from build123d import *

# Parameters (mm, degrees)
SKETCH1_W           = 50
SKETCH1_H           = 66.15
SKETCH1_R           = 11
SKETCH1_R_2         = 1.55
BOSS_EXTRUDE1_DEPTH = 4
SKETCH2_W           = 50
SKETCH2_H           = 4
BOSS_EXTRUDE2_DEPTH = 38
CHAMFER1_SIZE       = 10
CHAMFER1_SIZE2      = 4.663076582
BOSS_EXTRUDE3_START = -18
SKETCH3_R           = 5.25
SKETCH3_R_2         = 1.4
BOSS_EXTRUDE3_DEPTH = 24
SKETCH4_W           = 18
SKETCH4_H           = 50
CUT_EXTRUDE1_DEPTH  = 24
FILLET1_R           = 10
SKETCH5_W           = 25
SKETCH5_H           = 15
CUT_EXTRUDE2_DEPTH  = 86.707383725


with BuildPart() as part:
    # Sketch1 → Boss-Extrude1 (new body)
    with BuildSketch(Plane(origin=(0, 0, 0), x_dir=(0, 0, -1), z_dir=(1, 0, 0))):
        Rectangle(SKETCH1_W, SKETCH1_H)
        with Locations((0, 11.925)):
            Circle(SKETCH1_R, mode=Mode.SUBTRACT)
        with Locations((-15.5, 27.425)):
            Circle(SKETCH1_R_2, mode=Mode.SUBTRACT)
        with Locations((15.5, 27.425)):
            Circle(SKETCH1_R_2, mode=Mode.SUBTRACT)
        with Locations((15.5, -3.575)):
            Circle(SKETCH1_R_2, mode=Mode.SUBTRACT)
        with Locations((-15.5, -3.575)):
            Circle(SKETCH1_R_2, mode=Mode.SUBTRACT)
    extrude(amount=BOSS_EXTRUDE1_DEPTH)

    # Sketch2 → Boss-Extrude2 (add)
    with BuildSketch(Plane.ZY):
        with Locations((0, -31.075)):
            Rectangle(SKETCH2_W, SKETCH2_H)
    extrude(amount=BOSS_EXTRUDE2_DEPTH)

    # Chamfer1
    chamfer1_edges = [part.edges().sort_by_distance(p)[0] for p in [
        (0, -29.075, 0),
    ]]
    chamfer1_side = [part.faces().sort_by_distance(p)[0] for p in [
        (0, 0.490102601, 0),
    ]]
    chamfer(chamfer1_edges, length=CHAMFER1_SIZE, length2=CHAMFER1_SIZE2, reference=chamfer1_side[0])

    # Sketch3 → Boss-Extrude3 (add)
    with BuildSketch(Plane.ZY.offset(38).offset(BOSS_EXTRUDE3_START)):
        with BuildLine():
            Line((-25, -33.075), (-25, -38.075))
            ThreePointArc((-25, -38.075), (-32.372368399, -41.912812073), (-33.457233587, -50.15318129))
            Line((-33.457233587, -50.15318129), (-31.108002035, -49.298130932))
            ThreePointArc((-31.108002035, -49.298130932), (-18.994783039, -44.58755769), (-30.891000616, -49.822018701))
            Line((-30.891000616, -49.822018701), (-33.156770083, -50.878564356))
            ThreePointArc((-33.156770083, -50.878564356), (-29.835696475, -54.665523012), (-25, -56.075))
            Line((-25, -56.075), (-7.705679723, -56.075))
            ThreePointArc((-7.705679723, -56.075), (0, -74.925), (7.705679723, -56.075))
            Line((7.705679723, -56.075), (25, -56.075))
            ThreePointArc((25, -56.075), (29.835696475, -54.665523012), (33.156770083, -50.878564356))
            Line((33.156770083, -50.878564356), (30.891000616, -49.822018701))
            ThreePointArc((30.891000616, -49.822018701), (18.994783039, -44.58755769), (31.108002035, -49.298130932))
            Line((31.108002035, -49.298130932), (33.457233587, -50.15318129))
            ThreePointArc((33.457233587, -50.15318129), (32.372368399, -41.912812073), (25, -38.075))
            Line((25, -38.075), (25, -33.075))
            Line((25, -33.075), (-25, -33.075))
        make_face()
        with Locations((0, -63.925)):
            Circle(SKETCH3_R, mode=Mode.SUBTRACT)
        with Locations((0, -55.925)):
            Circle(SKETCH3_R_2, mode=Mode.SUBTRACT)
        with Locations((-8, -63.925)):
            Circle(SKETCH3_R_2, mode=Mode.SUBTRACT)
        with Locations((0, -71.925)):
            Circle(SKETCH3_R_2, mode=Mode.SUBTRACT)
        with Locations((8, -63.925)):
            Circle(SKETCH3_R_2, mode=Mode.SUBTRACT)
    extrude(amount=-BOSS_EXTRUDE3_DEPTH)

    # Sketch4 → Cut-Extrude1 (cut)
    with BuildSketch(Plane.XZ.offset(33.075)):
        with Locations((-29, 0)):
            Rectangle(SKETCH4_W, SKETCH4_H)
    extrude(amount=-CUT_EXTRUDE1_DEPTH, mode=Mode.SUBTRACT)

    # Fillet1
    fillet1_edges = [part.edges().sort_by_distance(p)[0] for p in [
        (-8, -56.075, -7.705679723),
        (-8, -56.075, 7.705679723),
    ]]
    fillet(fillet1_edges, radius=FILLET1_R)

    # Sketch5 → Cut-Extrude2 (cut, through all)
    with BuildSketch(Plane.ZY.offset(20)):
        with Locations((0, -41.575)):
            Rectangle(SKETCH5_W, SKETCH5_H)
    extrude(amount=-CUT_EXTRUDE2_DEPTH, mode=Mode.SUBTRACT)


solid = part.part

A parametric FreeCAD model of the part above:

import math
import FreeCAD as App
import Part
import Sketcher
Q = App.Units.Quantity


def edges_at(feature, points):
    """Names of the edges that pass closest to the given points."""
    edges = feature.Shape.Edges
    near = lambda p: min(range(len(edges)), key=lambda i: edges[i].distToShape(Part.Vertex(*p))[0])
    return sorted({f"Edge{near(p) + 1}" for p in points})

doc = App.newDocument("Part")
body = doc.addObject("PartDesign::Body", "Body")

# Sketch on YZ plane
sketch1 = body.newObject("Sketcher::SketchObject", "Sketch")
sketch1.AttachmentSupport = (doc.getObject("YZ_Plane"), [""])
sketch1.MapMode = "FlatFace"
sketch1.addGeometry(Part.LineSegment(App.Vector(33.1, 25, 0), App.Vector(-33.1, 25, 0)), False)
sketch1.addGeometry(Part.LineSegment(App.Vector(-33.1, 25, 0), App.Vector(-33.1, -25, 0)), False)
sketch1.addGeometry(Part.LineSegment(App.Vector(-33.1, -25, 0), App.Vector(33.1, -25, 0)), False)
sketch1.addGeometry(Part.LineSegment(App.Vector(33.1, -25, 0), App.Vector(33.1, 25, 0)), False)
sketch1.addGeometry(Part.Circle(App.Vector(-3.6, 15.5, 0), App.Vector(0, 0, 1), 1.6), False)
sketch1.addGeometry(Part.Circle(App.Vector(-3.6, -15.5, 0), App.Vector(0, 0, 1), 1.6), False)
sketch1.addGeometry(Part.Circle(App.Vector(27.4, 15.5, 0), App.Vector(0, 0, 1), 1.6), False)
sketch1.addGeometry(Part.Circle(App.Vector(11.9, 0, 0), App.Vector(0, 0, 1), 11), False)
sketch1.addGeometry(Part.Circle(App.Vector(27.4, -15.5, 0), App.Vector(0, 0, 1), 1.6), False)
sketch1.addConstraint(Sketcher.Constraint("Coincident", 0, 2, 1, 1))
sketch1.addConstraint(Sketcher.Constraint("Coincident", 1, 2, 2, 1))
sketch1.addConstraint(Sketcher.Constraint("Coincident", 2, 2, 3, 1))
sketch1.addConstraint(Sketcher.Constraint("Coincident", 3, 2, 0, 1))
sketch1.addConstraint(Sketcher.Constraint("Horizontal", 0))
sketch1.addConstraint(Sketcher.Constraint("Vertical", 1))
sketch1.addConstraint(Sketcher.Constraint("Horizontal", 2))
sketch1.addConstraint(Sketcher.Constraint("Vertical", 3))
sketch1.addConstraint(Sketcher.Constraint("Equal", 4, 5))
sketch1.addConstraint(Sketcher.Constraint("Equal", 5, 6))
sketch1.addConstraint(Sketcher.Constraint("Equal", 6, 8))
sketch1.addConstraint(Sketcher.Constraint("Symmetric", 0, 2, 2, 2, -1, 1))
sketch1.addConstraint(Sketcher.Constraint("Symmetric", 4, 3, 5, 3, -1))
sketch1.addConstraint(Sketcher.Constraint("Symmetric", 6, 3, 8, 3, -1))
sketch1.addConstraint(Sketcher.Constraint("PointOnObject", 7, 3, -1))
sketch1.addConstraint(Sketcher.Constraint("Horizontal", 4, 3, 6, 3))
sketch1.addConstraint(Sketcher.Constraint("Diameter", 7, Q("22 mm")))
sketch1.addConstraint(Sketcher.Constraint("Diameter", 4, Q("3.1 mm")))
sketch1.addConstraint(Sketcher.Constraint("DistanceY", 1, 2, 1, 1, Q("50 mm")))
sketch1.addConstraint(Sketcher.Constraint("DistanceY", 5, 3, 4, 3, Q("31 mm")))
sketch1.addConstraint(Sketcher.Constraint("DistanceX", 4, 3, 6, 3, Q("31 mm")))
sketch1.addConstraint(Sketcher.Constraint("DistanceX", 0, 2, 7, 3, Q("45 mm")))
sketch1.addConstraint(Sketcher.Constraint("DistanceX", 0, 2, 0, 1, Q("66.15 mm")))
sketch1.addConstraint(Sketcher.Constraint("DistanceX", 4, 3, 7, 3, Q("15.5 mm")))
pad1 = body.newObject("PartDesign::Pad", "Pad")
pad1.Profile = sketch1
pad1.Length = 4

# Sketch on YZ plane
sketch2 = body.newObject("Sketcher::SketchObject", "Sketch001")
sketch2.AttachmentSupport = (doc.getObject("YZ_Plane"), [""])
sketch2.MapMode = "FlatFace"
sketch2.addGeometry(Part.LineSegment(App.Vector(-29.1, -25, 0), App.Vector(-33.1, -25, 0)), False)
sketch2.addGeometry(Part.LineSegment(App.Vector(-33.1, -25, 0), App.Vector(-33.1, 25, 0)), False)
sketch2.addGeometry(Part.LineSegment(App.Vector(-33.1, 25, 0), App.Vector(-29.1, 25, 0)), False)
sketch2.addGeometry(Part.LineSegment(App.Vector(-29.1, 25, 0), App.Vector(-29.1, -25, 0)), False)
sketch2.addConstraint(Sketcher.Constraint("Coincident", 0, 2, 1, 1))
sketch2.addConstraint(Sketcher.Constraint("Coincident", 1, 2, 2, 1))
sketch2.addConstraint(Sketcher.Constraint("Coincident", 2, 2, 3, 1))
sketch2.addConstraint(Sketcher.Constraint("Coincident", 3, 2, 0, 1))
sketch2.addConstraint(Sketcher.Constraint("Horizontal", 0))
sketch2.addConstraint(Sketcher.Constraint("Vertical", 1))
sketch2.addConstraint(Sketcher.Constraint("Horizontal", 2))
sketch2.addConstraint(Sketcher.Constraint("Vertical", 3))
sketch2.addConstraint(Sketcher.Constraint("DistanceX", 0, 2, 0, 1, Q("4 mm")))
sketch2.addConstraint(Sketcher.Constraint("DistanceY", 1, 1, 1, 2, Q("50 mm")))
sketch2.addConstraint(Sketcher.Constraint("DistanceY", 0, 2, -1, 1, Q("25 mm")))
sketch2.addConstraint(Sketcher.Constraint("DistanceX", 0, 2, -1, 1, Q("33.075 mm")))
pad2 = body.newObject("PartDesign::Pad", "Pad001")
pad2.Profile = sketch2
pad2.Length = 38
pad2.Reversed = True
doc.recompute()

chamfer = body.newObject("PartDesign::Chamfer", "Chamfer")
chamfer.Base = (pad2, edges_at(pad2, [(0, -29.075, 0)]))
chamfer.ChamferType = "Two distances"
chamfer.Size = 10
chamfer.Size2 = 4.663077

# Sketch on YZ plane
sketch3 = body.newObject("Sketcher::SketchObject", "Sketch002")
sketch3.AttachmentSupport = (doc.getObject("YZ_Plane"), [""])
sketch3.MapMode = "FlatFace"
sketch3.AttachmentOffset = App.Placement(App.Vector(0, 0, -20), App.Rotation())
sketch3.addGeometry(Part.LineSegment(App.Vector(-33.1, -25, 0), App.Vector(-38.1, -25, 0)), False)
sketch3.addGeometry(Part.ArcOfCircle(Part.Circle(App.Vector(-47.1, -25, 0), App.Vector(0, 0, 1), 9), math.radians(-110), math.radians(0)), False)
sketch3.addGeometry(Part.LineSegment(App.Vector(-50.2, -33.5, 0), App.Vector(-49.3, -31.1, 0)), False)
sketch3.addGeometry(Part.ArcOfCircle(Part.Circle(App.Vector(-47.1, -25, 0), App.Vector(0, 0, 1), 6.5), math.radians(-110), math.radians(245)), False)
sketch3.addGeometry(Part.LineSegment(App.Vector(-49.8, -30.9, 0), App.Vector(-50.9, -33.2, 0)), False)
sketch3.addGeometry(Part.ArcOfCircle(Part.Circle(App.Vector(-47.1, -25, 0), App.Vector(0, 0, 1), 9), math.radians(-180), math.radians(-115)), False)
sketch3.addGeometry(Part.LineSegment(App.Vector(-56.1, -25, 0), App.Vector(-56.1, -7.7, 0)), False)
sketch3.addGeometry(Part.ArcOfCircle(Part.Circle(App.Vector(-63.9, 0, 0), App.Vector(0, 0, 1), 11), math.radians(44), math.radians(316)), False)
sketch3.addGeometry(Part.LineSegment(App.Vector(-56.1, 7.7, 0), App.Vector(-56.1, 25, 0)), False)
sketch3.addGeometry(Part.ArcOfCircle(Part.Circle(App.Vector(-47.1, 25, 0), App.Vector(0, 0, 1), 9), math.radians(115), math.radians(180)), False)
sketch3.addGeometry(Part.LineSegment(App.Vector(-50.9, 33.2, 0), App.Vector(-49.8, 30.9, 0)), False)
sketch3.addGeometry(Part.ArcOfCircle(Part.Circle(App.Vector(-47.1, 25, 0), App.Vector(0, 0, 1), 6.5), math.radians(115), math.radians(470)), False)
sketch3.addGeometry(Part.LineSegment(App.Vector(-49.3, 31.1, 0), App.Vector(-50.2, 33.5, 0)), False)
sketch3.addGeometry(Part.ArcOfCircle(Part.Circle(App.Vector(-47.1, 25, 0), App.Vector(0, 0, 1), 9), math.radians(0), math.radians(110)), False)
sketch3.addGeometry(Part.LineSegment(App.Vector(-38.1, 25, 0), App.Vector(-33.1, 25, 0)), False)
sketch3.addGeometry(Part.LineSegment(App.Vector(-33.1, 25, 0), App.Vector(-33.1, -25, 0)), False)
sketch3.addGeometry(Part.Circle(App.Vector(-71.9, 0, 0), App.Vector(0, 0, 1), 1.4), False)
sketch3.addGeometry(Part.Circle(App.Vector(-63.9, -8, 0), App.Vector(0, 0, 1), 1.4), False)
sketch3.addGeometry(Part.Circle(App.Vector(-63.9, 0, 0), App.Vector(0, 0, 1), 5.2), False)
sketch3.addGeometry(Part.Circle(App.Vector(-63.9, 8, 0), App.Vector(0, 0, 1), 1.4), False)
sketch3.addGeometry(Part.Circle(App.Vector(-55.9, 0, 0), App.Vector(0, 0, 1), 1.4), False)
sketch3.addConstraint(Sketcher.Constraint("Coincident", 0, 2, 1, 2))
sketch3.addConstraint(Sketcher.Constraint("Coincident", 1, 1, 2, 1))
sketch3.addConstraint(Sketcher.Constraint("Coincident", 2, 2, 3, 1))
sketch3.addConstraint(Sketcher.Constraint("Coincident", 3, 2, 4, 1))
sketch3.addConstraint(Sketcher.Constraint("Coincident", 4, 2, 5, 2))
sketch3.addConstraint(Sketcher.Constraint("Tangent", 5, 1, 6, 1))
sketch3.addConstraint(Sketcher.Constraint("Coincident", 6, 2, 7, 2))
sketch3.addConstraint(Sketcher.Constraint("Coincident", 7, 1, 8, 1))
sketch3.addConstraint(Sketcher.Constraint("Tangent", 8, 2, 9, 2))
sketch3.addConstraint(Sketcher.Constraint("Coincident", 9, 1, 10, 1))
sketch3.addConstraint(Sketcher.Constraint("Coincident", 10, 2, 11, 1))
sketch3.addConstraint(Sketcher.Constraint("Coincident", 11, 2, 12, 1))
sketch3.addConstraint(Sketcher.Constraint("Coincident", 12, 2, 13, 2))
sketch3.addConstraint(Sketcher.Constraint("Coincident", 13, 1, 14, 1))
sketch3.addConstraint(Sketcher.Constraint("Coincident", 14, 2, 15, 1))
sketch3.addConstraint(Sketcher.Constraint("Coincident", 15, 2, 0, 1))
sketch3.addConstraint(Sketcher.Constraint("Horizontal", 0))
sketch3.addConstraint(Sketcher.Constraint("Vertical", 6))
sketch3.addConstraint(Sketcher.Constraint("Vertical", 8))
sketch3.addConstraint(Sketcher.Constraint("Horizontal", 14))
sketch3.addConstraint(Sketcher.Constraint("Vertical", 15))
sketch3.addConstraint(Sketcher.Constraint("Coincident", 3, 3, 1, 3))
sketch3.addConstraint(Sketcher.Constraint("Coincident", 5, 3, 1, 3))
sketch3.addConstraint(Sketcher.Constraint("Coincident", 11, 3, 9, 3))
sketch3.addConstraint(Sketcher.Constraint("Coincident", 13, 3, 9, 3))
sketch3.addConstraint(Sketcher.Constraint("Coincident", 18, 3, 7, 3))
sketch3.addConstraint(Sketcher.Constraint("Equal", 1, 5))
sketch3.addConstraint(Sketcher.Constraint("Equal", 5, 9))
sketch3.addConstraint(Sketcher.Constraint("Equal", 3, 11))
sketch3.addConstraint(Sketcher.Constraint("Equal", 9, 13))
sketch3.addConstraint(Sketcher.Constraint("Equal", 16, 17))
sketch3.addConstraint(Sketcher.Constraint("Equal", 17, 19))
sketch3.addConstraint(Sketcher.Constraint("Equal", 19, 20))
sketch3.addConstraint(Sketcher.Constraint("Symmetric", 1, 3, 9, 3, -1))
sketch3.addConstraint(Sketcher.Constraint("Symmetric", 17, 3, 19, 3, -1))
sketch3.addConstraint(Sketcher.Constraint("PointOnObject", 7, 3, -1))
sketch3.addConstraint(Sketcher.Constraint("PointOnObject", 16, 3, -1))
sketch3.addConstraint(Sketcher.Constraint("PointOnObject", 20, 3, -1))
sketch3.addConstraint(Sketcher.Constraint("Horizontal", 5, 3, 0, 2))
sketch3.addConstraint(Sketcher.Constraint("Horizontal", 8, 2, 13, 1))
sketch3.addConstraint(Sketcher.Constraint("Vertical", 7, 3, 17, 3))
sketch3.addConstraint(Sketcher.Constraint("Vertical", 4, 2, 9, 1))
sketch3.addConstraint(Sketcher.Constraint("Vertical", 3, 2, 10, 2))
sketch3.addConstraint(Sketcher.Constraint("Vertical", 2, 2, 11, 2))
sketch3.addConstraint(Sketcher.Constraint("Vertical", 1, 1, 12, 2))
sketch3.addConstraint(Sketcher.Constraint("Radius", 1, Q("9 mm")))
sketch3.addConstraint(Sketcher.Constraint("Radius", 7, Q("11 mm")))
sketch3.addConstraint(Sketcher.Constraint("Diameter", 16, Q("2.8 mm")))
sketch3.addConstraint(Sketcher.Constraint("Diameter", 18, Q("10.5 mm")))
sketch3.addConstraint(Sketcher.Constraint("Radius", 3, Q("6.5 mm")))
sketch3.addConstraint(Sketcher.Constraint("DistanceX", 0, 2, 0, 1, Q("5 mm")))
sketch3.addConstraint(Sketcher.Constraint("DistanceY", 15, 2, 15, 1, Q("50 mm")))
sketch3.addConstraint(Sketcher.Constraint("Angle", 2, Q("70 deg")))
sketch3.addConstraint(Sketcher.Constraint("Angle", 4, Q("-115 deg")))
sketch3.addConstraint(Sketcher.Constraint("DistanceY", 17, 3, -1, 1, Q("8 mm")))
sketch3.addConstraint(Sketcher.Constraint("DistanceX", 16, 3, 7, 3, Q("8 mm")))
sketch3.addConstraint(Sketcher.Constraint("DistanceX", 7, 3, 20, 3, Q("8 mm")))
sketch3.addConstraint(Sketcher.Constraint("DistanceX", 7, 3, 3, 3, Q("16.85 mm")))
sketch3.addConstraint(Sketcher.Constraint("DistanceX", 1, 3, -1, 1, Q("47.075 mm")))
sketch3.addConstraint(Sketcher.Constraint("DistanceY", 3, 2, -1, 1, Q("30.891001 mm")))
sketch3.addConstraint(Sketcher.Constraint("DistanceY", 2, 2, 3, 2, Q("0.217001 mm")))
pad3 = body.newObject("PartDesign::Pad", "Pad002")
pad3.Profile = sketch3
pad3.Length = 24

# Sketch on XZ plane
sketch4 = body.newObject("Sketcher::SketchObject", "Sketch003")
sketch4.AttachmentSupport = (doc.getObject("XZ_Plane"), [""])
sketch4.MapMode = "FlatFace"
sketch4.AttachmentOffset = App.Placement(App.Vector(0, 0, 33.075), App.Rotation())
sketch4.addGeometry(Part.LineSegment(App.Vector(-38, 25, 0), App.Vector(-38, -25, 0)), False)
sketch4.addGeometry(Part.LineSegment(App.Vector(-38, -25, 0), App.Vector(-20, -25, 0)), False)
sketch4.addGeometry(Part.LineSegment(App.Vector(-20, -25, 0), App.Vector(-20, 25, 0)), False)
sketch4.addGeometry(Part.LineSegment(App.Vector(-20, 25, 0), App.Vector(-38, 25, 0)), False)
sketch4.addConstraint(Sketcher.Constraint("Coincident", 0, 2, 1, 1))
sketch4.addConstraint(Sketcher.Constraint("Coincident", 1, 2, 2, 1))
sketch4.addConstraint(Sketcher.Constraint("Coincident", 2, 2, 3, 1))
sketch4.addConstraint(Sketcher.Constraint("Coincident", 3, 2, 0, 1))
sketch4.addConstraint(Sketcher.Constraint("Vertical", 0))
sketch4.addConstraint(Sketcher.Constraint("Horizontal", 1))
sketch4.addConstraint(Sketcher.Constraint("Vertical", 2))
sketch4.addConstraint(Sketcher.Constraint("Horizontal", 3))
sketch4.addConstraint(Sketcher.Constraint("DistanceX", 1, 1, 1, 2, Q("18 mm")))
sketch4.addConstraint(Sketcher.Constraint("DistanceY", 0, 2, 0, 1, Q("50 mm")))
sketch4.addConstraint(Sketcher.Constraint("DistanceX", 0, 2, -1, 1, Q("38 mm")))
sketch4.addConstraint(Sketcher.Constraint("DistanceY", 0, 2, -1, 1, Q("25 mm")))
pocket1 = body.newObject("PartDesign::Pocket", "Pocket")
pocket1.Profile = sketch4
pocket1.Length = 24
doc.recompute()

fillet = body.newObject("PartDesign::Fillet", "Fillet")
fillet.Base = (pocket1, edges_at(pocket1, [(-8, -56.075, -7.706), (-8, -56.075, 7.706)]))
fillet.Radius = 10

# Sketch on YZ plane
sketch5 = body.newObject("Sketcher::SketchObject", "Sketch004")
sketch5.AttachmentSupport = (doc.getObject("YZ_Plane"), [""])
sketch5.MapMode = "FlatFace"
sketch5.AttachmentOffset = App.Placement(App.Vector(0, 0, -20), App.Rotation())
sketch5.addGeometry(Part.LineSegment(App.Vector(-34, -12, 0), App.Vector(-49, -12, 0)), False)
sketch5.addGeometry(Part.LineSegment(App.Vector(-49, -12, 0), App.Vector(-49, 12, 0)), False)
sketch5.addGeometry(Part.LineSegment(App.Vector(-49, 12, 0), App.Vector(-34, 12, 0)), False)
sketch5.addGeometry(Part.LineSegment(App.Vector(-34, 12, 0), App.Vector(-34, -12, 0)), False)
sketch5.addConstraint(Sketcher.Constraint("Coincident", 0, 2, 1, 1))
sketch5.addConstraint(Sketcher.Constraint("Coincident", 1, 2, 2, 1))
sketch5.addConstraint(Sketcher.Constraint("Coincident", 2, 2, 3, 1))
sketch5.addConstraint(Sketcher.Constraint("Coincident", 3, 2, 0, 1))
sketch5.addConstraint(Sketcher.Constraint("Horizontal", 0))
sketch5.addConstraint(Sketcher.Constraint("Vertical", 1))
sketch5.addConstraint(Sketcher.Constraint("Horizontal", 2))
sketch5.addConstraint(Sketcher.Constraint("Vertical", 3))
sketch5.addConstraint(Sketcher.Constraint("DistanceX", 0, 2, 0, 1, Q("15 mm")))
sketch5.addConstraint(Sketcher.Constraint("DistanceY", 1, 1, 1, 2, Q("25 mm")))
sketch5.addConstraint(Sketcher.Constraint("DistanceY", 0, 2, -1, 1, Q("12.5 mm")))
sketch5.addConstraint(Sketcher.Constraint("DistanceX", 0, 2, -1, 1, Q("49.075 mm")))
pocket2 = body.newObject("PartDesign::Pocket", "Pocket001")
pocket2.Profile = sketch5
pocket2.Type = "ThroughAll"
pocket2.Reversed = True

doc.recompute()
